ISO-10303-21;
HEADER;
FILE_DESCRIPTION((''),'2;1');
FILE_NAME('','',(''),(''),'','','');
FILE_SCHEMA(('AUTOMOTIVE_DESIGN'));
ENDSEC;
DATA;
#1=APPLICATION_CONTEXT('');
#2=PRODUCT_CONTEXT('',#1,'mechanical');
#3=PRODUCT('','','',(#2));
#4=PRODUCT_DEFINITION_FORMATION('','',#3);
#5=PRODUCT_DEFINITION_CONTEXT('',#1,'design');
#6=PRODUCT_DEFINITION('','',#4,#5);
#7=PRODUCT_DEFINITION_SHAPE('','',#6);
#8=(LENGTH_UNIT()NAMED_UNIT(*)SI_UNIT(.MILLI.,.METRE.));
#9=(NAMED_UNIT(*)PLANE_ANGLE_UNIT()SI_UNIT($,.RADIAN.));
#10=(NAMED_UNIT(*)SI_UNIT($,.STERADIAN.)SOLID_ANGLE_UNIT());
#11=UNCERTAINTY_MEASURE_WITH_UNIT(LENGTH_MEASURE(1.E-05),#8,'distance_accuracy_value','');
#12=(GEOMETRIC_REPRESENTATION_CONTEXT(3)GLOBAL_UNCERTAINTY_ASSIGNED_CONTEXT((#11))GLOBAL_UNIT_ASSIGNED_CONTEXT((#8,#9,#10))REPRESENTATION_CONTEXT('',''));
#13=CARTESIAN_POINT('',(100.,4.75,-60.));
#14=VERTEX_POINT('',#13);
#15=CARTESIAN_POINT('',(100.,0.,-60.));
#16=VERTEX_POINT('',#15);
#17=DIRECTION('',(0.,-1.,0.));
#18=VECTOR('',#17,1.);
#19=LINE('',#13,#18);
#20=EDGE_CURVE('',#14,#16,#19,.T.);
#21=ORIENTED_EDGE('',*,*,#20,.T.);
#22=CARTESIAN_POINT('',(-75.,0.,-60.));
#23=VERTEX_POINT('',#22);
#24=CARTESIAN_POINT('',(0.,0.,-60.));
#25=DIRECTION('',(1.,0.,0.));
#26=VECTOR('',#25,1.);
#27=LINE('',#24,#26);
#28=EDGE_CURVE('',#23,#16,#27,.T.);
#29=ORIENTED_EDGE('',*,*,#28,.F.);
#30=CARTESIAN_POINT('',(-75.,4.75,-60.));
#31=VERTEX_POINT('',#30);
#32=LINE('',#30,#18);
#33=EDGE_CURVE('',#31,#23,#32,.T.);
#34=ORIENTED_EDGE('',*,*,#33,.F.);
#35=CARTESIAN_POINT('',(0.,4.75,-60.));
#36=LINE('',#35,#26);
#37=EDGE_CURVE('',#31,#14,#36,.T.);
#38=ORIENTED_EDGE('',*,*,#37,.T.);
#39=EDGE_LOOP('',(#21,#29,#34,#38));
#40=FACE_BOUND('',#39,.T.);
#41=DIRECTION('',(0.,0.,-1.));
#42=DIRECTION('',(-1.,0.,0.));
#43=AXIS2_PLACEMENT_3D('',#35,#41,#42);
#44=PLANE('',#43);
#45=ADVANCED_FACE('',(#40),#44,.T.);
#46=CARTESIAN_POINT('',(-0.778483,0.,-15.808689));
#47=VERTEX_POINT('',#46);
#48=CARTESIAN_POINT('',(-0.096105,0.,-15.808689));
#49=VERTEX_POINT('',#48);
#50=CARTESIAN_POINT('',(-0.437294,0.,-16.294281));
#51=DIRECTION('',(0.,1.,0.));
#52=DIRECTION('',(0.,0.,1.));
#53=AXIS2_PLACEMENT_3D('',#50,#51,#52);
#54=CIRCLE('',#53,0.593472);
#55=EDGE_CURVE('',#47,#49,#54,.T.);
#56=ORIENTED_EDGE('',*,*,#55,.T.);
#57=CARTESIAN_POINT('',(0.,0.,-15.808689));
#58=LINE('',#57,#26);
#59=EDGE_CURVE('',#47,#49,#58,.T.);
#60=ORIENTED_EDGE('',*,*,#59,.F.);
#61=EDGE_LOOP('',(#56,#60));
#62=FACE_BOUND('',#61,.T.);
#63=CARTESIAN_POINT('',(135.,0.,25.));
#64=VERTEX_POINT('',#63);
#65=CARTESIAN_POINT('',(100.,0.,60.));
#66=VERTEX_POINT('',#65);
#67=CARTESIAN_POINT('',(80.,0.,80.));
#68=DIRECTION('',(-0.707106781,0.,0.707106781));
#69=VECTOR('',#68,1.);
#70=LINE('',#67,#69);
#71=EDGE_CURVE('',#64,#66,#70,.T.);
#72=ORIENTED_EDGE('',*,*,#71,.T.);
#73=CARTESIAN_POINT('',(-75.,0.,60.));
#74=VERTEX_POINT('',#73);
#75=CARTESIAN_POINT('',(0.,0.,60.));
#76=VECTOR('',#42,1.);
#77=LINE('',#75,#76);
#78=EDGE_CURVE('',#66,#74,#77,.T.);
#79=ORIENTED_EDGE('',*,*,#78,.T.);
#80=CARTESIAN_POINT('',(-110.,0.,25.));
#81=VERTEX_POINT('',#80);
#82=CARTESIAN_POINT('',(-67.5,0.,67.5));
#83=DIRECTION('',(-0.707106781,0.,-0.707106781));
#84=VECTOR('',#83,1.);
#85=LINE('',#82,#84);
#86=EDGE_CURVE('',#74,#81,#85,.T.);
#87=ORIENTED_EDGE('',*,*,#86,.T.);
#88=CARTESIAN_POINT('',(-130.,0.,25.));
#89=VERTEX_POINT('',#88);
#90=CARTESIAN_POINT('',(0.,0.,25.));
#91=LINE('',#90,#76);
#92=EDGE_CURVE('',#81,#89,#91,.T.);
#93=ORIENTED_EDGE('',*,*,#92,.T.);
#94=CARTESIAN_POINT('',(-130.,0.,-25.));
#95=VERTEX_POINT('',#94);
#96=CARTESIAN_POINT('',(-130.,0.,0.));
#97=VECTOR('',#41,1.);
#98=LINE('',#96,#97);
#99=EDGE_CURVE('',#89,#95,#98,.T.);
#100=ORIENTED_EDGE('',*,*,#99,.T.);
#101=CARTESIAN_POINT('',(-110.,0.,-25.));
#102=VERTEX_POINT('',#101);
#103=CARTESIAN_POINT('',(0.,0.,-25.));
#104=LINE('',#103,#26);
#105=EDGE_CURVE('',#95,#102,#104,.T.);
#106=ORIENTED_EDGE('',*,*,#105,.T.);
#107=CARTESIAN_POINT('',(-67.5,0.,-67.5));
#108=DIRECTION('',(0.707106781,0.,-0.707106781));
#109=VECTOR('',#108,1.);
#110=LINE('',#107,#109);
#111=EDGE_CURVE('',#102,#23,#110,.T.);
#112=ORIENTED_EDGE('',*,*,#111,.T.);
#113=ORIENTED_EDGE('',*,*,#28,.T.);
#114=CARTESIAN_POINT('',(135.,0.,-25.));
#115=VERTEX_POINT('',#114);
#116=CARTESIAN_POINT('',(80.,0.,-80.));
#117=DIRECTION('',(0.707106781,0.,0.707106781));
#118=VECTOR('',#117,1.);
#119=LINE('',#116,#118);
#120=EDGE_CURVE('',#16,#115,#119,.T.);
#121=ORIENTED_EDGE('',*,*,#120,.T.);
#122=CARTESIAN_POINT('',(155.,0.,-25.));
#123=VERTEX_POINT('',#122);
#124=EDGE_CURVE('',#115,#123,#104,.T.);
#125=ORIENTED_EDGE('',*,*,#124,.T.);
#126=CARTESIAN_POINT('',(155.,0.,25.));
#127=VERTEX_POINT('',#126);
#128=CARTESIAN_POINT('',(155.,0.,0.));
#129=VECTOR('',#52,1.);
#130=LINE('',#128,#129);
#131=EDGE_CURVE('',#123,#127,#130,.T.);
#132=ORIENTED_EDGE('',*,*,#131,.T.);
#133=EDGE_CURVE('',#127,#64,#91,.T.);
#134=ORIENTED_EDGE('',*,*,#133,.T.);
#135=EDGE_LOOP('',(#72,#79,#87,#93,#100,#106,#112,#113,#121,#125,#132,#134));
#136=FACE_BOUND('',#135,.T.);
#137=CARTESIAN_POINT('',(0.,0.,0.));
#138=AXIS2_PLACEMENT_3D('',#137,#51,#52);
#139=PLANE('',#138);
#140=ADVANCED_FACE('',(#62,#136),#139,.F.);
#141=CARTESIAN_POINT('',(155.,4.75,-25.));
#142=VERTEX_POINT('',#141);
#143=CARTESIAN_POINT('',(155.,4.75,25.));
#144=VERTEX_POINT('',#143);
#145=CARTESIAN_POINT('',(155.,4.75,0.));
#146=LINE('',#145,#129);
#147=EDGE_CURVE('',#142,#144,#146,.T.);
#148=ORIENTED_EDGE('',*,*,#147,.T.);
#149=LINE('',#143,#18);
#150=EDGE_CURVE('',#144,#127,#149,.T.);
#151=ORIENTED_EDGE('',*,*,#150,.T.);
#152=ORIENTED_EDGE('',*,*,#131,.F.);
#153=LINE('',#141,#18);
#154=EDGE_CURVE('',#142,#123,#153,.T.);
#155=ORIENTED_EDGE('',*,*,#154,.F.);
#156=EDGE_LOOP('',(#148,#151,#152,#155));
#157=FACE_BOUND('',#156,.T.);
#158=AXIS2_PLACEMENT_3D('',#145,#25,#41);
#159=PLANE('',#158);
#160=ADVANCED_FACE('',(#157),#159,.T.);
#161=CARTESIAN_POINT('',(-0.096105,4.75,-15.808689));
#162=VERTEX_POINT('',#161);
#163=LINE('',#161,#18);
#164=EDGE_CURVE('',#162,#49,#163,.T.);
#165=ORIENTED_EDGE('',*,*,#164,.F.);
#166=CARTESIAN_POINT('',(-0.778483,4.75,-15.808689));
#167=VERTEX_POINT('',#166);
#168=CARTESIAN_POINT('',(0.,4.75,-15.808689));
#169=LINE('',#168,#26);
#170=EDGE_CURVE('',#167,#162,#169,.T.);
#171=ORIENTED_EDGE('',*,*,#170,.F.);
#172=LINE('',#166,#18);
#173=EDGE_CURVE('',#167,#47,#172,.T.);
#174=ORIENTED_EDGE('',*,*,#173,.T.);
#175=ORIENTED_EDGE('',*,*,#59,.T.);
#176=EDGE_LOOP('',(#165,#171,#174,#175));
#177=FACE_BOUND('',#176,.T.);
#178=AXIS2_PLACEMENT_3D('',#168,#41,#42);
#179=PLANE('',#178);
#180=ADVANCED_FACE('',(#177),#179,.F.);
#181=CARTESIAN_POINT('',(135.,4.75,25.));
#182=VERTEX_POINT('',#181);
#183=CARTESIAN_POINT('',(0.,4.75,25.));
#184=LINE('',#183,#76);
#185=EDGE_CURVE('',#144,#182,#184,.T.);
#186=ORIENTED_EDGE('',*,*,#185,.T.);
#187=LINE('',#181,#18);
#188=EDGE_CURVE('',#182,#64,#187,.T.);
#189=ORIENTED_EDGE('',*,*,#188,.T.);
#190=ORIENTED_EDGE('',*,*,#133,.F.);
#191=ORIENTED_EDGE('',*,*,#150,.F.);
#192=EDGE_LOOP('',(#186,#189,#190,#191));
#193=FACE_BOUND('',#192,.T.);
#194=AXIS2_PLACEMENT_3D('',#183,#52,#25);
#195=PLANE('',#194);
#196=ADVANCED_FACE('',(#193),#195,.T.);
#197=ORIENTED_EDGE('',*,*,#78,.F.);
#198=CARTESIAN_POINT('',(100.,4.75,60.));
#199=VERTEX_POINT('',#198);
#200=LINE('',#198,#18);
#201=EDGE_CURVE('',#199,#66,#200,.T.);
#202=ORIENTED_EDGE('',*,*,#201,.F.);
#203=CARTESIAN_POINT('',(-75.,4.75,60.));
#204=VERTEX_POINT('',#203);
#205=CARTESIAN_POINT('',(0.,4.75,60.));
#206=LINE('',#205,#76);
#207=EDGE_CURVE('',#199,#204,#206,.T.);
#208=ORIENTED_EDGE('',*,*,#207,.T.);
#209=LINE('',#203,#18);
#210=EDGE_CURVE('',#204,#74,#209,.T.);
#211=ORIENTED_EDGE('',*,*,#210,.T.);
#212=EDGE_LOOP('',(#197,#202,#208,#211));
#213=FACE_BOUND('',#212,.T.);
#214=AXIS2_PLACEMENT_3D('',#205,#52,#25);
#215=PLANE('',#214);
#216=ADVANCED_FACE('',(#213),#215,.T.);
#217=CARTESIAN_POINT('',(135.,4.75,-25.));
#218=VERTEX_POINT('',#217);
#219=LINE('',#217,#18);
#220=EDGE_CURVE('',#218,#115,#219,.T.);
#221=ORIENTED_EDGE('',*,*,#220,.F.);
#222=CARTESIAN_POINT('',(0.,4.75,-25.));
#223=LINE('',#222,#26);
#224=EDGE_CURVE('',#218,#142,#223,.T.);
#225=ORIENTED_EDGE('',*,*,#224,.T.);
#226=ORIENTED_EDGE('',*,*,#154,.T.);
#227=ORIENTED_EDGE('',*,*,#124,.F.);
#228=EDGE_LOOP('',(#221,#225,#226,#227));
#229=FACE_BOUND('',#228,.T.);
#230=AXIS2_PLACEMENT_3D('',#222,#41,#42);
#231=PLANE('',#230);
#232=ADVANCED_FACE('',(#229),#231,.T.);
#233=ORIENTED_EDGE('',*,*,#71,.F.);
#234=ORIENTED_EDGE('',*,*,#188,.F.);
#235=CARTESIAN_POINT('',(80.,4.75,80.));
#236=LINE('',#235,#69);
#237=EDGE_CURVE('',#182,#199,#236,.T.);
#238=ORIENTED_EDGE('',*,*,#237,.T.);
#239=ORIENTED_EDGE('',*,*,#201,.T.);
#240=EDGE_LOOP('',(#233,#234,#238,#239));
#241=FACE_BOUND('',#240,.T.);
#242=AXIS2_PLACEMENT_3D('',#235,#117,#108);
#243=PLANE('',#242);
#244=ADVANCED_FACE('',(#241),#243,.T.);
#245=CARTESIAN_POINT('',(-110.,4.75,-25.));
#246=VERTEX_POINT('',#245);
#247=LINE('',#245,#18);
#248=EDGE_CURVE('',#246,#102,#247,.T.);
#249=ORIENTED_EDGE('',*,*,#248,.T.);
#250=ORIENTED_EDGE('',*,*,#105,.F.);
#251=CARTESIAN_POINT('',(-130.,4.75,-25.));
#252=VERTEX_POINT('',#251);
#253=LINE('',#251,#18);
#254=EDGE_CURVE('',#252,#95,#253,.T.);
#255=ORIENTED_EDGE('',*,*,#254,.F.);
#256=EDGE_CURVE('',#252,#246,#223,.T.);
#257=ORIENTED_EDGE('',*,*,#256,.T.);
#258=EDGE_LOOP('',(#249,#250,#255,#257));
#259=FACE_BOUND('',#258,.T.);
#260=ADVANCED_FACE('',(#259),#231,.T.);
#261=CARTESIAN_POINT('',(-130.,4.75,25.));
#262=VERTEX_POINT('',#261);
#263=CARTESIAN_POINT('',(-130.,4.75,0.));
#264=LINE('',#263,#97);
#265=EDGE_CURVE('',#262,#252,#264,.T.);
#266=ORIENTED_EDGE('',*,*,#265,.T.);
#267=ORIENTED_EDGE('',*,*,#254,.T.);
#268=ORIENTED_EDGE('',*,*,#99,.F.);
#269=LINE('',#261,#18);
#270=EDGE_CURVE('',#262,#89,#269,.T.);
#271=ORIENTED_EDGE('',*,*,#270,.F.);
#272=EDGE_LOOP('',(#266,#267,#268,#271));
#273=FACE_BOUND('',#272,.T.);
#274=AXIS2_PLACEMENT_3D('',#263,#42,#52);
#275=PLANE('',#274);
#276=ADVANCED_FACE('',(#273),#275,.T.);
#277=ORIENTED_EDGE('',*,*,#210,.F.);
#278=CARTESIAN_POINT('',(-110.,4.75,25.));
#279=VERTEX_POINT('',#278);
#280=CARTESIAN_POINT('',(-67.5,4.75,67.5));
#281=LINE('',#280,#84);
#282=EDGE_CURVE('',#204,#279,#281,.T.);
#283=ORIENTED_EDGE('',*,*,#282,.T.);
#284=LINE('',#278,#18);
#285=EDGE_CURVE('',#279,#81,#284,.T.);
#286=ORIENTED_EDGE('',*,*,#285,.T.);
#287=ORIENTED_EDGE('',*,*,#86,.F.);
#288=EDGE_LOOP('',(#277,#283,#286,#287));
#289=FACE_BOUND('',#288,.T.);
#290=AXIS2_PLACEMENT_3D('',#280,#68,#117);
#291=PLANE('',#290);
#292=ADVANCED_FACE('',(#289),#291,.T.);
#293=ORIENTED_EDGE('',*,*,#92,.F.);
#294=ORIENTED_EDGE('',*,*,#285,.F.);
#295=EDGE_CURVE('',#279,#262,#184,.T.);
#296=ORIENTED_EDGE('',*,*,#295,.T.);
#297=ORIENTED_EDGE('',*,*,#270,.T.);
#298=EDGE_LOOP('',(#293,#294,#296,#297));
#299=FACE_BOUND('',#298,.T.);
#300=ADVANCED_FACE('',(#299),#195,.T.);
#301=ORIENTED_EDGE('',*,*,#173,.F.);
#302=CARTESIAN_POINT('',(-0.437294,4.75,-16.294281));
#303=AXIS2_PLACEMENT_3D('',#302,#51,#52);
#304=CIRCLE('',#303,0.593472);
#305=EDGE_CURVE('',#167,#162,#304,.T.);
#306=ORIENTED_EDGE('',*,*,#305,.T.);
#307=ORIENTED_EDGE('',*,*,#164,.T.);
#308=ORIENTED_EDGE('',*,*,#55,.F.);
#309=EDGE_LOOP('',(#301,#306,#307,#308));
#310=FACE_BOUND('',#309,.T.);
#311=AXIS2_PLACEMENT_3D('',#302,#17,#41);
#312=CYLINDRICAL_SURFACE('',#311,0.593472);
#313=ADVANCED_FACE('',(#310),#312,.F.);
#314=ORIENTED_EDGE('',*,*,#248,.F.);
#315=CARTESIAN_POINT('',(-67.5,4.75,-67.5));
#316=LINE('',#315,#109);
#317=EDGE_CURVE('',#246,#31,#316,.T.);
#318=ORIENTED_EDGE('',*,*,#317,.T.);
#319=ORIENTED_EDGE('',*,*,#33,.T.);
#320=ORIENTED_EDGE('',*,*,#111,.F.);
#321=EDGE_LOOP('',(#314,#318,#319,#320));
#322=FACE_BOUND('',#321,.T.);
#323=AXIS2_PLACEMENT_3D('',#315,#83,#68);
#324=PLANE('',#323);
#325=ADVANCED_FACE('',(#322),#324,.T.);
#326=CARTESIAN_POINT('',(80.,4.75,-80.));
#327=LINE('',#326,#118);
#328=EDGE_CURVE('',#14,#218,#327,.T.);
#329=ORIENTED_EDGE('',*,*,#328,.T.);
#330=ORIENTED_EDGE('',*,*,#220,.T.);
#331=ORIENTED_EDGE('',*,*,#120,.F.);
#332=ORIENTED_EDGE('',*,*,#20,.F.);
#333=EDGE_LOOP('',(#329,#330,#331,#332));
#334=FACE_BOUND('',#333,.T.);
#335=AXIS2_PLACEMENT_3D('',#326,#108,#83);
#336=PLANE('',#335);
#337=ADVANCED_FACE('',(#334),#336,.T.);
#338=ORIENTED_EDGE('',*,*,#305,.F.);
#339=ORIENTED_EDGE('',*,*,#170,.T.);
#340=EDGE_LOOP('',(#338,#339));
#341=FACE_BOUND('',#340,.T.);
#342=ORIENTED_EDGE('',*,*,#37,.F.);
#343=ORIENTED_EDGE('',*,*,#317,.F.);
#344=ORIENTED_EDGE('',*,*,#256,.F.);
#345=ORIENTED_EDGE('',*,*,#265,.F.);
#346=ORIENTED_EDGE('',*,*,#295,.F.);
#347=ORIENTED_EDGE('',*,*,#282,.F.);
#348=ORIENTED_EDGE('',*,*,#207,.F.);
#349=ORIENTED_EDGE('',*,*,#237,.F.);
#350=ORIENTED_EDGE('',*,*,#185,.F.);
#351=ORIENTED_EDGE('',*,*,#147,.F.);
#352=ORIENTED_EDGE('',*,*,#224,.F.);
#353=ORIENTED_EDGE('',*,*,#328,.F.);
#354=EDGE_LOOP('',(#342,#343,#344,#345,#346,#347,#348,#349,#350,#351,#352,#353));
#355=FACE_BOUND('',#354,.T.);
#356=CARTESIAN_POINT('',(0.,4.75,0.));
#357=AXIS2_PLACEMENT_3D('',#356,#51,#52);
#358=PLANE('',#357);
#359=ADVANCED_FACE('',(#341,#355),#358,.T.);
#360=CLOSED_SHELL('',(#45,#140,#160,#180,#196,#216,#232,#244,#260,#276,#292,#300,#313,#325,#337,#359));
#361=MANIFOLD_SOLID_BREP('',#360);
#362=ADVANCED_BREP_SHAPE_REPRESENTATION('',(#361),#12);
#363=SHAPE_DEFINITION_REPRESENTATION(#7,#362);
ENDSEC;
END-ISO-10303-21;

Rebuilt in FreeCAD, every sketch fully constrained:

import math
import FreeCAD as App
import Part
import Sketcher
from FreeCAD import Vector
Q = App.Units.Quantity


def add_polygon(sketch, points):
    """Adds a closed chain of lines whose ends are joined by coincident constraints."""
    first, n = sketch.GeometryCount, len(points)
    for a, b in zip(points, points[1:] + points[:1]):
        sketch.addGeometry(Part.LineSegment(App.Vector(*a, 0), App.Vector(*b, 0)), False)
    for i in range(n):
        sketch.addConstraint(Sketcher.Constraint("Coincident", first + i, 2, first + (i + 1) % n, 1))

doc = App.newDocument("Part")
body = doc.addObject("PartDesign::Body", "Body")

# Sketch on XZ plane
sketch1 = body.newObject("Sketcher::SketchObject", "Sketch")
sketch1.AttachmentSupport = (doc.getObject("XZ_Plane"), [""])
sketch1.MapMode = "FlatFace"
add_polygon(sketch1, [(100, -60), (-75, -60), (-110, -25), (-130, -25), (-130, 25), (-110, 25), (-75, 60), (100, 60), (135, 25), (155, 25), (155, -25), (135, -25)])  # lines 0-11
sketch1.addGeometry(Part.LineSegment(Vector(-0.8, -15.8, 0), Vector(-0.1, -15.8, 0)), False)  # 12
sketch1.addGeometry(Part.ArcOfCircle(Part.Circle(Vector(-0.4, -16.3, 0), Vector(0, 0, 1), 0.6), math.radians(55), math.radians(125)), False)  # 13
sketch1.addConstraint([
    Sketcher.Constraint("Coincident", 12, 1, 13, 2),
    Sketcher.Constraint("Coincident", 13, 1, 12, 2),
    Sketcher.Constraint("Horizontal", 0),
    Sketcher.Constraint("Horizontal", 2),
    Sketcher.Constraint("Vertical", 3),
    Sketcher.Constraint("Horizontal", 4),
    Sketcher.Constraint("Horizontal", 6),
    Sketcher.Constraint("Horizontal", 8),
    Sketcher.Constraint("Vertical", 9),
    Sketcher.Constraint("Horizontal", 10),
    Sketcher.Constraint("Horizontal", 12),
    Sketcher.Constraint("Symmetric", 1, 2, 4, 2, -1),
    Sketcher.Constraint("Symmetric", 0, 2, 5, 2, -1),
    Sketcher.Constraint("Symmetric", 7, 2, 10, 2, -1),
    Sketcher.Constraint("Perpendicular", 1, 5),
    Sketcher.Constraint("Perpendicular", 5, 7),
    Sketcher.Constraint("Perpendicular", 7, 11),
    Sketcher.Constraint("Horizontal", 4, 2, 7, 2),
    Sketcher.Constraint("Equal", 4, 8),
    Sketcher.Constraint("DistanceX", 0, 2, 0, 1, Q("175 mm")),
    Sketcher.Constraint("DistanceX", 2, 2, 2, 1, Q("20 mm")),
    Sketcher.Constraint("DistanceY", 3, 1, 3, 2, Q("50 mm")),
    Sketcher.Constraint("DistanceX", 0, 2, -1, 1, Q("75 mm")),
    Sketcher.Constraint("DistanceY", 0, 2, -1, 1, Q("60 mm")),
    Sketcher.Constraint("Radius", 13, Q("0.593472 mm")),
    Sketcher.Constraint("DistanceX", 12, 1, 12, 2, Q("0.682378 mm")),
    Sketcher.Constraint("DistanceY", 13, 3, -1, 1, Q("16.294281 mm")),
    Sketcher.Constraint("DistanceX", 13, 3, -1, 1, Q("0.437294 mm")),
])
pad1 = body.newObject("PartDesign::Pad", "Pad")
pad1.Profile = sketch1
pad1.Length = 4.75
pad1.Reversed = True

doc.recompute()
